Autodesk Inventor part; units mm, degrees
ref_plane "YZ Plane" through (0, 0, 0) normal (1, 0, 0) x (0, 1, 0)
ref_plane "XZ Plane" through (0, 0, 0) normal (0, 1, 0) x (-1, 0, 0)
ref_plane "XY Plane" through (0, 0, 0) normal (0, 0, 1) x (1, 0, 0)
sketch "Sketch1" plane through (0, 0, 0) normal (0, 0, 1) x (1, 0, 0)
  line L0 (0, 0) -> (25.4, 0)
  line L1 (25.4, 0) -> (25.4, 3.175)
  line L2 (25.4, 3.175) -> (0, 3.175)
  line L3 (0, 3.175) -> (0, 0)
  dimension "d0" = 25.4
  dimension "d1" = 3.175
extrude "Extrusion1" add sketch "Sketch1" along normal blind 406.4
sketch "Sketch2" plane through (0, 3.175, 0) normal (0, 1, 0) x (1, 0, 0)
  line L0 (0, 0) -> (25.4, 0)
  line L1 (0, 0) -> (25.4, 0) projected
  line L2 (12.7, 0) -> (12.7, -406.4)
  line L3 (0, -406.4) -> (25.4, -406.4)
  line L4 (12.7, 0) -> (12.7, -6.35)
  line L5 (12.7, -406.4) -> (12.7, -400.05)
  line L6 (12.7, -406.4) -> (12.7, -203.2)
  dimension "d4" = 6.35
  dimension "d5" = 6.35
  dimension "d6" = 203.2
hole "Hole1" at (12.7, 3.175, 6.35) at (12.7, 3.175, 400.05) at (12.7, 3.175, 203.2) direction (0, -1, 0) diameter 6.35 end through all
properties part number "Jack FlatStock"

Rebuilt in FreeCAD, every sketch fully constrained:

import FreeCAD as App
import Part
import Sketcher
Q = App.Units.Quantity

doc = App.newDocument("Part")
body = doc.addObject("PartDesign::Body", "Body")

# Sketch on XY plane
sketch1 = body.newObject("Sketcher::SketchObject", "Sketch")
sketch1.AttachmentSupport = (doc.getObject("XY_Plane"), [""])
sketch1.MapMode = "FlatFace"
sketch1.addGeometry(Part.LineSegment(App.Vector(0, 3.2, 0), App.Vector(0, 0, 0)), False)
sketch1.addGeometry(Part.LineSegment(App.Vector(0, 0, 0), App.Vector(25.4, 0, 0)), False)
sketch1.addGeometry(Part.LineSegment(App.Vector(25.4, 0, 0), App.Vector(25.4, 3.2, 0)), False)
sketch1.addGeometry(Part.LineSegment(App.Vector(25.4, 3.2, 0), App.Vector(0, 3.2, 0)), False)
sketch1.addConstraint(Sketcher.Constraint("Coincident", 0, 2, 1, 1))
sketch1.addConstraint(Sketcher.Constraint("Coincident", 1, 2, 2, 1))
sketch1.addConstraint(Sketcher.Constraint("Coincident", 2, 2, 3, 1))
sketch1.addConstraint(Sketcher.Constraint("Coincident", 3, 2, 0, 1))
sketch1.addConstraint(Sketcher.Constraint("Vertical", 0))
sketch1.addConstraint(Sketcher.Constraint("Horizontal", 1))
sketch1.addConstraint(Sketcher.Constraint("Vertical", 2))
sketch1.addConstraint(Sketcher.Constraint("Horizontal", 3))
sketch1.addConstraint(Sketcher.Constraint("Coincident", 0, 2, -1, 1))
sketch1.addConstraint(Sketcher.Constraint("DistanceX", 1, 1, 1, 2, Q("1 in")))
sketch1.addConstraint(Sketcher.Constraint("DistanceY", 0, 2, 0, 1, Q("0.125 in")))
pad1 = body.newObject("PartDesign::Pad", "Pad")
pad1.Profile = sketch1
pad1.Length = Q("16 in")

# Sketch on XZ plane
sketch2 = body.newObject("Sketcher::SketchObject", "Sketch001")
sketch2.AttachmentSupport = (doc.getObject("XZ_Plane"), [""])
sketch2.MapMode = "FlatFace"
sketch2.AttachmentOffset = App.Placement(App.Vector(0, 0, -0.125 * 25.4), App.Rotation())
sketch2.addGeometry(Part.Circle(App.Vector(12.7, 6.3, 0), App.Vector(0, 0, 1), 3.2), False)
sketch2.addGeometry(Part.Circle(App.Vector(12.7, 400.1, 0), App.Vector(0, 0, 1), 3.2), False)
sketch2.addGeometry(Part.Circle(App.Vector(12.7, 203.2, 0), App.Vector(0, 0, 1), 3.2), False)
sketch2.addConstraint(Sketcher.Constraint("Equal", 0, 1))
sketch2.addConstraint(Sketcher.Constraint("Equal", 1, 2))
sketch2.addConstraint(Sketcher.Constraint("Vertical", 0, 3, 1, 3))
sketch2.addConstraint(Sketcher.Constraint("Vertical", 1, 3, 2, 3))
sketch2.addConstraint(Sketcher.Constraint("Diameter", 0, Q("0.25 in")))
sketch2.addConstraint(Sketcher.Constraint("DistanceY", -1, 1, 2, 3, Q("8 in")))
sketch2.addConstraint(Sketcher.Constraint("DistanceX", -1, 1, 0, 3, Q("0.5 in")))
sketch2.addConstraint(Sketcher.Constraint("DistanceY", 0, 3, 1, 3, Q("15.5 in")))
sketch2.addConstraint(Sketcher.Constraint("DistanceY", -1, 1, 0, 3, Q("0.25 in")))
doc.recompute()
hole = body.newObject("PartDesign::Hole", "Hole")
hole.Profile = sketch2
hole.ThreadType = "None"
hole.Diameter = Q("0.25 in")
hole.DepthType = "ThroughAll"
hole.Reversed = True

doc.recompute()
